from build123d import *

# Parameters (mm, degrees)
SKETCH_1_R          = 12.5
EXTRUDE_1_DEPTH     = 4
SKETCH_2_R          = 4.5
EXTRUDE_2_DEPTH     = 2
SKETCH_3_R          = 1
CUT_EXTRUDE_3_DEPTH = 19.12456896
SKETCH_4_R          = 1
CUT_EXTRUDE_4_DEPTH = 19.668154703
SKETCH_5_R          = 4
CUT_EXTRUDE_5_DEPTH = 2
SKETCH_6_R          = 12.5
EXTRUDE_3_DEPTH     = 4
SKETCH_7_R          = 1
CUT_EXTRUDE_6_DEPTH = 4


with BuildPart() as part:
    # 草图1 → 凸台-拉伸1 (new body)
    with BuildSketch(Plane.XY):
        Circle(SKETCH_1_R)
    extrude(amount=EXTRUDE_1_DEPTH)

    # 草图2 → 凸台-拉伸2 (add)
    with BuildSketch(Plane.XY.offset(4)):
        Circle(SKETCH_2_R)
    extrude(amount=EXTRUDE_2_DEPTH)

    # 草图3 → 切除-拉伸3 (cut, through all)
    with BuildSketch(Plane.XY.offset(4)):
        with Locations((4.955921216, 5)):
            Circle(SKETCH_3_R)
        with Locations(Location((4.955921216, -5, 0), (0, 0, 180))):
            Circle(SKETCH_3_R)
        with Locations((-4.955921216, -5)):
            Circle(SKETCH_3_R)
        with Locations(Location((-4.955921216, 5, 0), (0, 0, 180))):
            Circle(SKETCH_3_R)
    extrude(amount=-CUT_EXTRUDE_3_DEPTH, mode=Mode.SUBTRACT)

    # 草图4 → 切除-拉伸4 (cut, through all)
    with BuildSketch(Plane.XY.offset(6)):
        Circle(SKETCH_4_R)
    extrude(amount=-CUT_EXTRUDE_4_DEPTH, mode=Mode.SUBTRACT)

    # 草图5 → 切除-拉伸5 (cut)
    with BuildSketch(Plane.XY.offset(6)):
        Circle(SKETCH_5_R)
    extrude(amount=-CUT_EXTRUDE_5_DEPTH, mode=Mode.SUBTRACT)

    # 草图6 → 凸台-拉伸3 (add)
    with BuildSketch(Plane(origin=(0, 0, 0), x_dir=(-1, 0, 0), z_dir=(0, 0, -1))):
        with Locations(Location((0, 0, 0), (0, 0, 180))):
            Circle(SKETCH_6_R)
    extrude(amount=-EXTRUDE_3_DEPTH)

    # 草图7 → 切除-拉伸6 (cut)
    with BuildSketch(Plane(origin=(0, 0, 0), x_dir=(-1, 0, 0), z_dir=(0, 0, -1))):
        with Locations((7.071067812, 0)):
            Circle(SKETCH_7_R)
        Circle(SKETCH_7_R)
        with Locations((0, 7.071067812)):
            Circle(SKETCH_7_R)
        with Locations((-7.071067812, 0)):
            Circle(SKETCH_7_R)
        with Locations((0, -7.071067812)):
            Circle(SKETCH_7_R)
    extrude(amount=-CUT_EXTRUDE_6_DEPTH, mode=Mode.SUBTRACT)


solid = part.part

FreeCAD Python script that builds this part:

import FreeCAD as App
import Part
import Sketcher
Q = App.Units.Quantity

doc = App.newDocument("Part")
body = doc.addObject("PartDesign::Body", "Body")

sketch1 = body.newObject("Sketcher::SketchObject", "Sketch")
sketch1.AttachmentSupport = (doc.getObject("XY_Plane"), [""])
sketch1.MapMode = "FlatFace"
sketch1.addGeometry(Part.Circle(App.Vector(0, 0, 0), App.Vector(0, 0, 1), 12.5), False)
sketch1.addConstraint([
    Sketcher.Constraint("Coincident", 0, 3, -1, 1),
    Sketcher.Constraint("Diameter", 0, Q("25 mm")),
])
pad1 = body.newObject("PartDesign::Pad", "Pad")
pad1.Profile = sketch1
pad1.Length = 4

sketch2 = body.newObject("Sketcher::SketchObject", "Sketch001")
sketch2.AttachmentSupport = (doc.getObject("XY_Plane"), [""])
sketch2.MapMode = "FlatFace"
sketch2.AttachmentOffset = App.Placement(App.Vector(0, 0, 4), App.Rotation())
sketch2.addGeometry(Part.Circle(App.Vector(0, 0, 0), App.Vector(0, 0, 1), 4.5), False)
sketch2.addConstraint([
    Sketcher.Constraint("Coincident", 0, 3, -1, 1),
    Sketcher.Constraint("Diameter", 0, Q("9 mm")),
])
pad2 = body.newObject("PartDesign::Pad", "Pad001")
pad2.Profile = sketch2
pad2.Length = 2

sketch3 = body.newObject("Sketcher::SketchObject", "Sketch002")
sketch3.AttachmentSupport = (doc.getObject("XY_Plane"), [""])
sketch3.MapMode = "FlatFace"
sketch3.AttachmentOffset = App.Placement(App.Vector(0, 0, 4), App.Rotation())
sketch3.addGeometry([
    Part.Circle(App.Vector(4.955921, 5, 0), App.Vector(0, 0, 1), 1),
    Part.Circle(App.Vector(4.955921, -5, 0), App.Vector(0, 0, 1), 1),
    Part.Circle(App.Vector(-4.955921, -5, 0), App.Vector(0, 0, 1), 1),
    Part.Circle(App.Vector(-4.955921, 5, 0), App.Vector(0, 0, 1), 1),
], False)
sketch3.addConstraint([
    Sketcher.Constraint("Equal", 0, 1),
    Sketcher.Constraint("Equal", 1, 2),
    Sketcher.Constraint("Equal", 2, 3),
    Sketcher.Constraint("Symmetric", 0, 3, 2, 3, -1, 1),
    Sketcher.Constraint("Symmetric", 1, 3, 3, 3, -1, 1),
    Sketcher.Constraint("Symmetric", 1, 3, 2, 3, -2),
    Sketcher.Constraint("Diameter", 0, Q("2 mm")),
    Sketcher.Constraint("DistanceY", -1, 1, 0, 3, Q("5 mm")),
    Sketcher.Constraint("DistanceX", -1, 1, 0, 3, Q("4.955921 mm")),
])
pocket1 = body.newObject("PartDesign::Pocket", "Pocket")
pocket1.Profile = sketch3
pocket1.Type = "ThroughAll"

sketch4 = body.newObject("Sketcher::SketchObject", "Sketch003")
sketch4.AttachmentSupport = (doc.getObject("XY_Plane"), [""])
sketch4.MapMode = "FlatFace"
sketch4.AttachmentOffset = App.Placement(App.Vector(0, 0, 6), App.Rotation())
sketch4.addGeometry(Part.Circle(App.Vector(0, 0, 0), App.Vector(0, 0, 1), 1), False)
sketch4.addConstraint([
    Sketcher.Constraint("Coincident", 0, 3, -1, 1),
    Sketcher.Constraint("Diameter", 0, Q("2 mm")),
])
pocket2 = body.newObject("PartDesign::Pocket", "Pocket001")
pocket2.Profile = sketch4
pocket2.Type = "ThroughAll"

sketch5 = body.newObject("Sketcher::SketchObject", "Sketch004")
sketch5.AttachmentSupport = (doc.getObject("XY_Plane"), [""])
sketch5.MapMode = "FlatFace"
sketch5.AttachmentOffset = App.Placement(App.Vector(0, 0, 6), App.Rotation())
sketch5.addGeometry(Part.Circle(App.Vector(0, 0, 0), App.Vector(0, 0, 1), 4), False)
sketch5.addConstraint([
    Sketcher.Constraint("Coincident", 0, 3, -1, 1),
    Sketcher.Constraint("Diameter", 0, Q("8 mm")),
])
pocket3 = body.newObject("PartDesign::Pocket", "Pocket002")
pocket3.Profile = sketch5
pocket3.Length = 2

sketch6 = body.newObject("Sketcher::SketchObject", "Sketch005")
sketch6.AttachmentSupport = (doc.getObject("XY_Plane"), [""])
sketch6.MapMode = "FlatFace"
sketch6.addGeometry(Part.Circle(App.Vector(0, 0, 0), App.Vector(0, 0, 1), 12.5), False)
sketch6.addConstraint([
    Sketcher.Constraint("Coincident", 0, 3, -1, 1),
    Sketcher.Constraint("Diameter", 0, Q("25 mm")),
])
pad3 = body.newObject("PartDesign::Pad", "Pad002")
pad3.Profile = sketch6
pad3.Length = 4

sketch7 = body.newObject("Sketcher::SketchObject", "Sketch006")
sketch7.AttachmentSupport = (doc.getObject("XY_Plane"), [""])
sketch7.MapMode = "FlatFace"
sketch7.addGeometry([
    Part.Circle(App.Vector(-7.071068, 0, 0), App.Vector(0, 0, 1), 1),
    Part.Circle(App.Vector(0, 0, 0), App.Vector(0, 0, 1), 1),
    Part.Circle(App.Vector(0, 7.071068, 0), App.Vector(0, 0, 1), 1),
    Part.Circle(App.Vector(7.071068, 0, 0), App.Vector(0, 0, 1), 1),
    Part.Circle(App.Vector(0, -7.071068, 0), App.Vector(0, 0, 1), 1),
], False)
sketch7.addConstraint([
    Sketcher.Constraint("Coincident", 1, 3, -1, 1),
    Sketcher.Constraint("Equal", 0, 1),
    Sketcher.Constraint("Equal", 1, 2),
    Sketcher.Constraint("Equal", 2, 3),
    Sketcher.Constraint("Equal", 3, 4),
    Sketcher.Constraint("Symmetric", 0, 3, 3, 3, -1, 1),
    Sketcher.Constraint("Symmetric", 2, 3, 4, 3, -1, 1),
    Sketcher.Constraint("PointOnObject", 0, 3, -1),
    Sketcher.Constraint("PointOnObject", 2, 3, -2),
    Sketcher.Constraint("Diameter", 0, Q("2 mm")),
    Sketcher.Constraint("DistanceX", 0, 3, -1, 1, Q("7.071068 mm")),
    Sketcher.Constraint("DistanceY", -1, 1, 2, 3, Q("7.071068 mm")),
])
pocket4 = body.newObject("PartDesign::Pocket", "Pocket003")
pocket4.Profile = sketch7
pocket4.Length = 4
pocket4.Reversed = True

doc.recompute()
